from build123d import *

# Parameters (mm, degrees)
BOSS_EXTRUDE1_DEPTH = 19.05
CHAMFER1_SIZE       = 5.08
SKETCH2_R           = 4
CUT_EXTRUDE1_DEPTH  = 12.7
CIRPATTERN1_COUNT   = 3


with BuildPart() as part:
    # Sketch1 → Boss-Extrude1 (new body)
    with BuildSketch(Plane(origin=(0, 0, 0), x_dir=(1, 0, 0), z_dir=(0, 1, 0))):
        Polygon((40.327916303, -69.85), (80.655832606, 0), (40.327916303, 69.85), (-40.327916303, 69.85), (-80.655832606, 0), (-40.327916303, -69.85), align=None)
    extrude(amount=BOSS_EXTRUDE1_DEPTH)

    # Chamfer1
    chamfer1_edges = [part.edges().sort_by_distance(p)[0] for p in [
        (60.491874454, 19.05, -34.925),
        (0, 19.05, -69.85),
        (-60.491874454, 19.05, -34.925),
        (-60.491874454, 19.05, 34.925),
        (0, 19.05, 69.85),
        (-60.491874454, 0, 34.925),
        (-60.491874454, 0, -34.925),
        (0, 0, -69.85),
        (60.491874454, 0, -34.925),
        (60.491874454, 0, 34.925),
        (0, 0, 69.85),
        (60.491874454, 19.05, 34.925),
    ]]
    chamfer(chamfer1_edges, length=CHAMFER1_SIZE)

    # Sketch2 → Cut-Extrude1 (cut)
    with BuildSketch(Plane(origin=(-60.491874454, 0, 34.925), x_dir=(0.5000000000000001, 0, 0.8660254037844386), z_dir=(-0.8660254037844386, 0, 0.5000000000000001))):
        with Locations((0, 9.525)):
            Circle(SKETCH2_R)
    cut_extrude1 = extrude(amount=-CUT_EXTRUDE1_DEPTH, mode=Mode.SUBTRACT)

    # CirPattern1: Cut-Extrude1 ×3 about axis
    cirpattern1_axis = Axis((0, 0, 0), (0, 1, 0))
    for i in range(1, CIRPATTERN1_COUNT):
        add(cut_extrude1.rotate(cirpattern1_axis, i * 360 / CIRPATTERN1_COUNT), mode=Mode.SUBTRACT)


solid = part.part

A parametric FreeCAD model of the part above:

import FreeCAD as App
import Part
import Sketcher
Q = App.Units.Quantity


def edges_at(feature, points):
    """Names of the edges that pass closest to the given points."""
    edges = feature.Shape.Edges
    near = lambda p: min(range(len(edges)), key=lambda i: edges[i].distToShape(Part.Vertex(*p))[0])
    return sorted({f"Edge{near(p) + 1}" for p in points})


def add_polygon(sketch, points):
    """Adds a closed chain of lines whose ends are joined by coincident constraints."""
    first, n = sketch.GeometryCount, len(points)
    for a, b in zip(points, points[1:] + points[:1]):
        sketch.addGeometry(Part.LineSegment(App.Vector(*a, 0), App.Vector(*b, 0)), False)
    for i in range(n):
        sketch.addConstraint(Sketcher.Constraint("Coincident", first + i, 2, first + (i + 1) % n, 1))

doc = App.newDocument("Part")
body = doc.addObject("PartDesign::Body", "Body")

# Sketch on XZ plane
sketch1 = body.newObject("Sketcher::SketchObject", "Sketch")
sketch1.AttachmentSupport = (doc.getObject("XZ_Plane"), [""])
sketch1.MapMode = "FlatFace"
add_polygon(sketch1, [(40, 70), (81, 0), (40, -70), (-40, -70), (-81, 0), (-40, 70)])  # lines 0-5
sketch1.addConstraint([
    Sketcher.Constraint("Horizontal", 2),
    Sketcher.Constraint("Horizontal", 5),
    Sketcher.Constraint("Symmetric", 0, 2, 3, 2, -1, 1),
    Sketcher.Constraint("Symmetric", 1, 2, 4, 2, -1, 1),
    Sketcher.Constraint("PointOnObject", 0, 2, -1),
    Sketcher.Constraint("Parallel", 0, 3),
    Sketcher.Constraint("Vertical", 2, 2, 4, 2),
    Sketcher.Constraint("Angle", 0, Q("-60 deg")),
    Sketcher.Constraint("DistanceY", 2, 2, 4, 2, Q("5.5 in")),
    Sketcher.Constraint("DistanceX", 2, 2, 2, 1, 80.655833),
])
pad1 = body.newObject("PartDesign::Pad", "Pad")
pad1.Profile = sketch1
pad1.Length = Q("0.75 in")
pad1.Reversed = True
doc.recompute()

chamfer = body.newObject("PartDesign::Chamfer", "Chamfer")
chamfer.Base = (pad1, edges_at(pad1, [
    (60.492, 19.05, -34.925),
    (0, 19.05, -69.85),
    (-60.492, 19.05, -34.925),
    (-60.492, 19.05, 34.925),
    (0, 19.05, 69.85),
    (-60.492, 0, 34.925),
    (-60.492, 0, -34.925),
    (0, 0, -69.85),
    (60.492, 0, -34.925),
    (60.492, 0, 34.925),
    (0, 0, 69.85),
    (60.492, 19.05, 34.925),
]))
chamfer.Size = Q("0.2 in")

# Sketch on an angled plane
sketch2 = body.newObject("Sketcher::SketchObject", "Sketch001")
sketch2.Placement = App.Placement(App.Vector(-60.491874, 0, 34.925), App.Rotation(App.Vector(0.5, 0, 0.866025404), App.Vector(0, 1, 0), App.Vector(-0.866025404, 0, 0.5), "ZXY"))
sketch2.addGeometry(Part.Circle(App.Vector(0, 9.5, 0), App.Vector(0, 0, 1), 4), False)
sketch2.addConstraint([
    Sketcher.Constraint("PointOnObject", 0, 3, -2),
    Sketcher.Constraint("Diameter", 0, 8.0),
    Sketcher.Constraint("DistanceY", -1, 1, 0, 3, Q("0.375 in")),
])
pocket1 = body.newObject("PartDesign::Pocket", "Pocket")
pocket1.Profile = sketch2
pocket1.Length = Q("0.5 in")
doc.recompute()

polarpattern = body.newObject("PartDesign::PolarPattern", "PolarPattern")
polarpattern.Originals = [pocket1]
polarpattern.Axis = (doc.getObject("Y_Axis"), [""])
polarpattern.Angle = 360
polarpattern.Occurrences = 3
body.Tip = polarpattern

doc.recompute()
